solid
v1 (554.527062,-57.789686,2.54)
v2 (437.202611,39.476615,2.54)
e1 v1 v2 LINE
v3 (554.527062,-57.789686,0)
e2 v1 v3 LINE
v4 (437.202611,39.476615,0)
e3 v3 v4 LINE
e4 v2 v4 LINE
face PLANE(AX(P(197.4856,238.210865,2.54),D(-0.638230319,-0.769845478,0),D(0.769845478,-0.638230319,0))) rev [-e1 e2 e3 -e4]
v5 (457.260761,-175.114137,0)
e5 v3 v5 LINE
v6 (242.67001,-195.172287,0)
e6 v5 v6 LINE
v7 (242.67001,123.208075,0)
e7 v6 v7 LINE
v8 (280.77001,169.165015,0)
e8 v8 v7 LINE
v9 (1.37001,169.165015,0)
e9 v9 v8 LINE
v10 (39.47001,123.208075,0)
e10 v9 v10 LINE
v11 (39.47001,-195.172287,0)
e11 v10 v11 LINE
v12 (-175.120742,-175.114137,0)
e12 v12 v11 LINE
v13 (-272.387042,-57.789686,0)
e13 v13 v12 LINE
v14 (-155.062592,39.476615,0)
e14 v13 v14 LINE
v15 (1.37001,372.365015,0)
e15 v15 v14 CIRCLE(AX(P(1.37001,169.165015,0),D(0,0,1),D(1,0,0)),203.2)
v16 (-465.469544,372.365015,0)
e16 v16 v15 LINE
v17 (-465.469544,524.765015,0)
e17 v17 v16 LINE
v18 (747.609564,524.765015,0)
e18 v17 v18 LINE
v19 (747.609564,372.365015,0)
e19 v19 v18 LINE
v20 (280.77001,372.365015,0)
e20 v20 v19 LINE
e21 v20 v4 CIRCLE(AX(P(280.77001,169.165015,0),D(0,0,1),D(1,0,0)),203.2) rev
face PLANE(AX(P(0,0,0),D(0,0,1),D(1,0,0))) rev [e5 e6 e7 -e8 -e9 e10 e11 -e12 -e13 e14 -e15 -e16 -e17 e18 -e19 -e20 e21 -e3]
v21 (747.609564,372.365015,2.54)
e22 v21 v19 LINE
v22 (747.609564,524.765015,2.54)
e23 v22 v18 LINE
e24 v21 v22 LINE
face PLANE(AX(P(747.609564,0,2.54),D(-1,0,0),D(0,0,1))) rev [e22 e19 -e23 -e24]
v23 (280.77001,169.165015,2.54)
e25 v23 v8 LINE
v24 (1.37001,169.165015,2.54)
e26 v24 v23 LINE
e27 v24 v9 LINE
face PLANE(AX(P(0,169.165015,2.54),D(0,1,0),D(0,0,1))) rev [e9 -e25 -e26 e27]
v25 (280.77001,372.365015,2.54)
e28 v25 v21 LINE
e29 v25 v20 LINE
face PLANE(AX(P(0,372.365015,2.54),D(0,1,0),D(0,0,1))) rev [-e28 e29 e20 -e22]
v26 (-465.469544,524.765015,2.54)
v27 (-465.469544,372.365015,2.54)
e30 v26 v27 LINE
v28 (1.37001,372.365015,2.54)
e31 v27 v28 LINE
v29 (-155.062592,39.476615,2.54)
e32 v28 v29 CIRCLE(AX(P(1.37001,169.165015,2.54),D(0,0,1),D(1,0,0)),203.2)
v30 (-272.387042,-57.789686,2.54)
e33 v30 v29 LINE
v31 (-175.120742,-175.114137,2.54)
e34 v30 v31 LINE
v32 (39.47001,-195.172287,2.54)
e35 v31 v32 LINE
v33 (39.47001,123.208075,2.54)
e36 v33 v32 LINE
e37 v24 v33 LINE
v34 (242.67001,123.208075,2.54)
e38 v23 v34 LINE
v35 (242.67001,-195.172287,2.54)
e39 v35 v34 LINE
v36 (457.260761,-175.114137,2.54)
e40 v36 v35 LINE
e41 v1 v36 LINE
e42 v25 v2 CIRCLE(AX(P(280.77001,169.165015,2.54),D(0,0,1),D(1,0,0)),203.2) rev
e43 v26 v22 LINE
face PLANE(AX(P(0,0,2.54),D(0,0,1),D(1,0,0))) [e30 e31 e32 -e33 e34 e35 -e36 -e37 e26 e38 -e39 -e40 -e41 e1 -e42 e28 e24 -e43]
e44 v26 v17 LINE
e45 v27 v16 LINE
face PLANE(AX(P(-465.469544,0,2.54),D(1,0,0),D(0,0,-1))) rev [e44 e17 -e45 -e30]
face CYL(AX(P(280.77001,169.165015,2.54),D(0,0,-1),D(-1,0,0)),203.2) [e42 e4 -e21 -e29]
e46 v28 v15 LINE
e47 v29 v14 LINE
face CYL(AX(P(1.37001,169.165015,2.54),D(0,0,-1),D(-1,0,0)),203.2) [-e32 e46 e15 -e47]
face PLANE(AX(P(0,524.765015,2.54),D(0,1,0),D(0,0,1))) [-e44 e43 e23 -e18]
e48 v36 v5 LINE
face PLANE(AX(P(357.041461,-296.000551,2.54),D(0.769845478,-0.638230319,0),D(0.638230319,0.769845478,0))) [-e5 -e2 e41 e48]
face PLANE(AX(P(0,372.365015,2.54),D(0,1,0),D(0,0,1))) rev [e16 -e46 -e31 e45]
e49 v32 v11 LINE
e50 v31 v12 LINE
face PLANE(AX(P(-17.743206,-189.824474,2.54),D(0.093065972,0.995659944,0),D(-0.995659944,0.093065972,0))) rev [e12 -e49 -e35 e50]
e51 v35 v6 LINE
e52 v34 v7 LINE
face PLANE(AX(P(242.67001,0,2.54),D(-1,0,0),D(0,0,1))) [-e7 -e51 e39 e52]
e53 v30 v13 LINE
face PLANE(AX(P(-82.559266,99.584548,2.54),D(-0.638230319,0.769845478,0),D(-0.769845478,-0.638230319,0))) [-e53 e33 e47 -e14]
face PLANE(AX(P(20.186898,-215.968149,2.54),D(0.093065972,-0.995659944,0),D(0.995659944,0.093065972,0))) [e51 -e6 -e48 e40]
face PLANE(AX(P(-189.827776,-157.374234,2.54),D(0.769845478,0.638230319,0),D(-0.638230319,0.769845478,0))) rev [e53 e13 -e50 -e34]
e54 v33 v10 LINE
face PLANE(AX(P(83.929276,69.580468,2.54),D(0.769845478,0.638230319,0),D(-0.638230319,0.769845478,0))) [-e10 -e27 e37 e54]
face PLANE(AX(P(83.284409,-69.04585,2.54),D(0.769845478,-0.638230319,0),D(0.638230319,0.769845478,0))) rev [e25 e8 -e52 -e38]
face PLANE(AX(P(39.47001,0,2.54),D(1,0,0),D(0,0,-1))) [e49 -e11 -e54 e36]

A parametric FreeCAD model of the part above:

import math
import FreeCAD as App
import Part
import Sketcher
from FreeCAD import Vector
Q = App.Units.Quantity

doc = App.newDocument("Part")
body = doc.addObject("PartDesign::Body", "Body")

# Sketch on XY plane
sketch1 = body.newObject("Sketcher::SketchObject", "Sketch")
sketch1.AttachmentSupport = (doc.getObject("XY_Plane"), [""])
sketch1.MapMode = "FlatFace"
sketch1.addGeometry(Part.LineSegment(Vector(1, 169, 0), Vector(281, 169, 0)), False)
sketch1.addGeometry(Part.LineSegment(Vector(281, 169, 0), Vector(243, 123, 0)), False)
sketch1.addGeometry(Part.LineSegment(Vector(243, 123, 0), Vector(243, -195, 0)), False)
sketch1.addGeometry(Part.LineSegment(Vector(243, -195, 0), Vector(457, -175, 0)), False)
sketch1.addGeometry(Part.LineSegment(Vector(457, -175, 0), Vector(555, -58, 0)), False)
sketch1.addGeometry(Part.LineSegment(Vector(555, -58, 0), Vector(437, 39, 0)), False)
sketch1.addGeometry(Part.ArcOfCircle(Part.Circle(Vector(281, 169, 0), Vector(0, 0, 1), 203), math.radians(-40), math.radians(90)), False)
sketch1.addGeometry(Part.LineSegment(Vector(281, 372, 0), Vector(748, 372, 0)), False)
sketch1.addGeometry(Part.LineSegment(Vector(748, 372, 0), Vector(748, 525, 0)), False)
sketch1.addGeometry(Part.LineSegment(Vector(748, 525, 0), Vector(-465, 525, 0)), False)
sketch1.addGeometry(Part.LineSegment(Vector(-465, 525, 0), Vector(-465, 372, 0)), False)
sketch1.addGeometry(Part.LineSegment(Vector(-465, 372, 0), Vector(1, 372, 0)), False)
sketch1.addGeometry(Part.ArcOfCircle(Part.Circle(Vector(1, 169, 0), Vector(0, 0, 1), 203), math.radians(90), math.radians(220)), False)
sketch1.addGeometry(Part.LineSegment(Vector(-155, 39, 0), Vector(-272, -58, 0)), False)
sketch1.addGeometry(Part.LineSegment(Vector(-272, -58, 0), Vector(-175, -175, 0)), False)
sketch1.addGeometry(Part.LineSegment(Vector(-175, -175, 0), Vector(39, -195, 0)), False)
sketch1.addGeometry(Part.LineSegment(Vector(39, -195, 0), Vector(39, 123, 0)), False)
sketch1.addGeometry(Part.LineSegment(Vector(39, 123, 0), Vector(1, 169, 0)), False)
sketch1.addConstraint(Sketcher.Constraint("Coincident", 0, 2, 1, 1))
sketch1.addConstraint(Sketcher.Constraint("Coincident", 1, 2, 2, 1))
sketch1.addConstraint(Sketcher.Constraint("Coincident", 2, 2, 3, 1))
sketch1.addConstraint(Sketcher.Constraint("Coincident", 3, 2, 4, 1))
sketch1.addConstraint(Sketcher.Constraint("Coincident", 4, 2, 5, 1))
sketch1.addConstraint(Sketcher.Constraint("Coincident", 5, 2, 6, 1))
sketch1.addConstraint(Sketcher.Constraint("Tangent", 6, 2, 7, 1))
sketch1.addConstraint(Sketcher.Constraint("Coincident", 7, 2, 8, 1))
sketch1.addConstraint(Sketcher.Constraint("Coincident", 8, 2, 9, 1))
sketch1.addConstraint(Sketcher.Constraint("Coincident", 9, 2, 10, 1))
sketch1.addConstraint(Sketcher.Constraint("Coincident", 10, 2, 11, 1))
sketch1.addConstraint(Sketcher.Constraint("Tangent", 11, 2, 12, 1))
sketch1.addConstraint(Sketcher.Constraint("Coincident", 12, 2, 13, 1))
sketch1.addConstraint(Sketcher.Constraint("Coincident", 13, 2, 14, 1))
sketch1.addConstraint(Sketcher.Constraint("Coincident", 14, 2, 15, 1))
sketch1.addConstraint(Sketcher.Constraint("Coincident", 15, 2, 16, 1))
sketch1.addConstraint(Sketcher.Constraint("Coincident", 16, 2, 17, 1))
sketch1.addConstraint(Sketcher.Constraint("Coincident", 17, 2, 0, 1))
sketch1.addConstraint(Sketcher.Constraint("Horizontal", 0))
sketch1.addConstraint(Sketcher.Constraint("Vertical", 2))
sketch1.addConstraint(Sketcher.Constraint("Horizontal", 7))
sketch1.addConstraint(Sketcher.Constraint("Vertical", 8))
sketch1.addConstraint(Sketcher.Constraint("Horizontal", 9))
sketch1.addConstraint(Sketcher.Constraint("Vertical", 10))
sketch1.addConstraint(Sketcher.Constraint("Horizontal", 11))
sketch1.addConstraint(Sketcher.Constraint("Vertical", 16))
sketch1.addConstraint(Sketcher.Constraint("Coincident", 0, 2, 6, 3))
sketch1.addConstraint(Sketcher.Constraint("Coincident", 17, 2, 12, 3))
sketch1.addConstraint(Sketcher.Constraint("Equal", 6, 12))
sketch1.addConstraint(Sketcher.Constraint("Parallel", 1, 4))
sketch1.addConstraint(Sketcher.Constraint("Perpendicular", 4, 5))
sketch1.addConstraint(Sketcher.Constraint("Perpendicular", 13, 14))
sketch1.addConstraint(Sketcher.Constraint("Parallel", 14, 17))
sketch1.addConstraint(Sketcher.Constraint("Horizontal", 5, 2, 12, 2))
sketch1.addConstraint(Sketcher.Constraint("Horizontal", 4, 2, 13, 2))
sketch1.addConstraint(Sketcher.Constraint("Horizontal", 3, 2, 14, 2))
sketch1.addConstraint(Sketcher.Constraint("Horizontal", 2, 2, 15, 2))
sketch1.addConstraint(Sketcher.Constraint("Horizontal", 1, 2, 16, 2))
sketch1.addConstraint(Sketcher.Constraint("Equal", 7, 11))
sketch1.addConstraint(Sketcher.Constraint("Equal", 4, 5))
sketch1.addConstraint(Sketcher.Constraint("Equal", 5, 13))
sketch1.addConstraint(Sketcher.Constraint("Radius", 6, Q("8 in")))
sketch1.addConstraint(Sketcher.Constraint("DistanceX", 0, 1, 0, 2, Q("11 in")))
sketch1.addConstraint(Sketcher.Constraint("DistanceY", 8, 1, 8, 2, Q("6 in")))
sketch1.addConstraint(Sketcher.Constraint("Distance", 4, Q("6 in")))
sketch1.addConstraint(Sketcher.Constraint("DistanceX", 15, 2, 2, 2, Q("8 in")))
sketch1.addConstraint(Sketcher.Constraint("Angle", 1, Q("-129.659985 deg")))
sketch1.addConstraint(Sketcher.Constraint("Angle", 3, Q("5.340015 deg")))
sketch1.addConstraint(Sketcher.Constraint("DistanceX", 9, 2, 9, 1, 1213.079108))
sketch1.addConstraint(Sketcher.Constraint("DistanceY", 2, 2, 4, 2, 137.382601))
sketch1.addConstraint(Sketcher.Constraint("DistanceX", -1, 1, 6, 3, 280.77001))
sketch1.addConstraint(Sketcher.Constraint("DistanceY", -1, 1, 6, 3, 169.165015))
pad1 = body.newObject("PartDesign::Pad", "Pad")
pad1.Profile = sketch1
pad1.Length = Q("0.1 in")

doc.recompute()
